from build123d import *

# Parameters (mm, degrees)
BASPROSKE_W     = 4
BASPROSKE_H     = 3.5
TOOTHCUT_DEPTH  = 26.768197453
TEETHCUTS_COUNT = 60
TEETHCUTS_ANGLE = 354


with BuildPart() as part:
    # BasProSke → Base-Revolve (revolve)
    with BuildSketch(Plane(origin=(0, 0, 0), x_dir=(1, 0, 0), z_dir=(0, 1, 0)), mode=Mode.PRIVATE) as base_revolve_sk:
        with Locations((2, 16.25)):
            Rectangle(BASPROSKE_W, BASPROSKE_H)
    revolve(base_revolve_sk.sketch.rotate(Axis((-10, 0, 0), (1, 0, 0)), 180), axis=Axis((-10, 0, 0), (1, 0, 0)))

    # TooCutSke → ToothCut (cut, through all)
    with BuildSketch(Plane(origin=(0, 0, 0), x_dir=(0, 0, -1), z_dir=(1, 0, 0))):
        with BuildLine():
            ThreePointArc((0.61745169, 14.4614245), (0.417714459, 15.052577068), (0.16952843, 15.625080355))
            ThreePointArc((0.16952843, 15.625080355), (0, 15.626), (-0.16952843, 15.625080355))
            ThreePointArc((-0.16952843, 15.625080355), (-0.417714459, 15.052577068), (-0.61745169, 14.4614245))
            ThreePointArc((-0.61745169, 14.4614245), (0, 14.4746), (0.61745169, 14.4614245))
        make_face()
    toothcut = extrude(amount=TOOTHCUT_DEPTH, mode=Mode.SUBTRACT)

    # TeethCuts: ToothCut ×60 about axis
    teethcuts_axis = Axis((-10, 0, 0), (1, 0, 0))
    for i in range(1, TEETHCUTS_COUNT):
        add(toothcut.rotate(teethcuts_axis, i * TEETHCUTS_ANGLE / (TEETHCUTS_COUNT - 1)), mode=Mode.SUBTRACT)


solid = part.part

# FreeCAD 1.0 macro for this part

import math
import FreeCAD as App
import Part
import Sketcher
from FreeCAD import Vector


def add_polygon(sketch, points):
    """Adds a closed chain of lines whose ends are joined by coincident constraints."""
    first, n = sketch.GeometryCount, len(points)
    for a, b in zip(points, points[1:] + points[:1]):
        sketch.addGeometry(Part.LineSegment(App.Vector(*a, 0), App.Vector(*b, 0)), False)
    for i in range(n):
        sketch.addConstraint(Sketcher.Constraint("Coincident", first + i, 2, first + (i + 1) % n, 1))

doc = App.newDocument("Part")
body = doc.addObject("PartDesign::Body", "Body")

# Sketch on XZ plane
sketch1 = body.newObject("Sketcher::SketchObject", "Sketch")
sketch1.AttachmentSupport = (doc.getObject("XZ_Plane"), [""])
sketch1.MapMode = "FlatFace"
add_polygon(sketch1, [(0, -18), (0, -14.5), (4, -14.5), (4, -18)])  # lines 0-3
sketch1.addConstraint(Sketcher.Constraint("Vertical", 0))
sketch1.addConstraint(Sketcher.Constraint("Horizontal", 1))
sketch1.addConstraint(Sketcher.Constraint("Vertical", 2))
sketch1.addConstraint(Sketcher.Constraint("Horizontal", 3))
sketch1.addConstraint(Sketcher.Constraint("PointOnObject", 0, 2, -2))
sketch1.addConstraint(Sketcher.Constraint("DistanceX", 1, 1, 1, 2, 4.0))
sketch1.addConstraint(Sketcher.Constraint("DistanceY", 0, 1, 0, 2, 3.5))
sketch1.addConstraint(Sketcher.Constraint("DistanceY", 2, 2, -1, 1, 18.0))
revolution = body.newObject("PartDesign::Revolution", "Revolution")
revolution.Profile = sketch1
revolution.ReferenceAxis = (sketch1, ["H_Axis"])
revolution.Angle = 360

# Sketch on YZ plane
sketch2 = body.newObject("Sketcher::SketchObject", "Sketch001")
sketch2.AttachmentSupport = (doc.getObject("YZ_Plane"), [""])
sketch2.MapMode = "FlatFace"
sketch2.addGeometry(Part.ArcOfCircle(Part.Circle(Vector(12.36, 6.58, 0), Vector(0, 0, 1), 7.5), math.radians(-73.72), math.radians(-64.18)), False)
sketch2.addGeometry(Part.ArcOfCircle(Part.Circle(Vector(0, 0, 0), Vector(0, 0, 1), 15.63), math.radians(-0.62), math.radians(0.62)), False)
sketch2.addGeometry(Part.ArcOfCircle(Part.Circle(Vector(12.36, -6.58, 0), Vector(0, 0, 1), 7.5), math.radians(64.18), math.radians(73.72)), False)
sketch2.addGeometry(Part.ArcOfCircle(Part.Circle(Vector(0, 0, 0), Vector(0, 0, 1), 14.47), math.radians(-2.44), math.radians(2.44)), False)
sketch2.addConstraint(Sketcher.Constraint("Coincident", 0, 2, 1, 1))
sketch2.addConstraint(Sketcher.Constraint("Coincident", 1, 2, 2, 1))
sketch2.addConstraint(Sketcher.Constraint("Coincident", 2, 2, 3, 2))
sketch2.addConstraint(Sketcher.Constraint("Coincident", 3, 1, 0, 1))
sketch2.addConstraint(Sketcher.Constraint("Coincident", 1, 3, -1, 1))
sketch2.addConstraint(Sketcher.Constraint("Coincident", 3, 3, -1, 1))
sketch2.addConstraint(Sketcher.Constraint("Equal", 0, 2))
sketch2.addConstraint(Sketcher.Constraint("Symmetric", 0, 3, 2, 3, -1))
sketch2.addConstraint(Sketcher.Constraint("Radius", 0, 7.5))
sketch2.addConstraint(Sketcher.Constraint("Radius", 3, 14.4746))
sketch2.addConstraint(Sketcher.Constraint("Radius", 1, 15.625994))
sketch2.addConstraint(Sketcher.Constraint("DistanceX", -1, 1, 0, 3, 12.35833))
sketch2.addConstraint(Sketcher.Constraint("DistanceY", 0, 2, -1, 1, 0.169528))
pocket1 = body.newObject("PartDesign::Pocket", "Pocket")
pocket1.Profile = sketch2
pocket1.Type = "ThroughAll"
pocket1.Reversed = True
doc.recompute()

polarpattern = body.newObject("PartDesign::PolarPattern", "PolarPattern")
polarpattern.Originals = [pocket1]
polarpattern.Axis = (doc.getObject("X_Axis"), [""])
polarpattern.Angle = 360
polarpattern.Occurrences = 60
body.Tip = polarpattern

doc.recompute()
